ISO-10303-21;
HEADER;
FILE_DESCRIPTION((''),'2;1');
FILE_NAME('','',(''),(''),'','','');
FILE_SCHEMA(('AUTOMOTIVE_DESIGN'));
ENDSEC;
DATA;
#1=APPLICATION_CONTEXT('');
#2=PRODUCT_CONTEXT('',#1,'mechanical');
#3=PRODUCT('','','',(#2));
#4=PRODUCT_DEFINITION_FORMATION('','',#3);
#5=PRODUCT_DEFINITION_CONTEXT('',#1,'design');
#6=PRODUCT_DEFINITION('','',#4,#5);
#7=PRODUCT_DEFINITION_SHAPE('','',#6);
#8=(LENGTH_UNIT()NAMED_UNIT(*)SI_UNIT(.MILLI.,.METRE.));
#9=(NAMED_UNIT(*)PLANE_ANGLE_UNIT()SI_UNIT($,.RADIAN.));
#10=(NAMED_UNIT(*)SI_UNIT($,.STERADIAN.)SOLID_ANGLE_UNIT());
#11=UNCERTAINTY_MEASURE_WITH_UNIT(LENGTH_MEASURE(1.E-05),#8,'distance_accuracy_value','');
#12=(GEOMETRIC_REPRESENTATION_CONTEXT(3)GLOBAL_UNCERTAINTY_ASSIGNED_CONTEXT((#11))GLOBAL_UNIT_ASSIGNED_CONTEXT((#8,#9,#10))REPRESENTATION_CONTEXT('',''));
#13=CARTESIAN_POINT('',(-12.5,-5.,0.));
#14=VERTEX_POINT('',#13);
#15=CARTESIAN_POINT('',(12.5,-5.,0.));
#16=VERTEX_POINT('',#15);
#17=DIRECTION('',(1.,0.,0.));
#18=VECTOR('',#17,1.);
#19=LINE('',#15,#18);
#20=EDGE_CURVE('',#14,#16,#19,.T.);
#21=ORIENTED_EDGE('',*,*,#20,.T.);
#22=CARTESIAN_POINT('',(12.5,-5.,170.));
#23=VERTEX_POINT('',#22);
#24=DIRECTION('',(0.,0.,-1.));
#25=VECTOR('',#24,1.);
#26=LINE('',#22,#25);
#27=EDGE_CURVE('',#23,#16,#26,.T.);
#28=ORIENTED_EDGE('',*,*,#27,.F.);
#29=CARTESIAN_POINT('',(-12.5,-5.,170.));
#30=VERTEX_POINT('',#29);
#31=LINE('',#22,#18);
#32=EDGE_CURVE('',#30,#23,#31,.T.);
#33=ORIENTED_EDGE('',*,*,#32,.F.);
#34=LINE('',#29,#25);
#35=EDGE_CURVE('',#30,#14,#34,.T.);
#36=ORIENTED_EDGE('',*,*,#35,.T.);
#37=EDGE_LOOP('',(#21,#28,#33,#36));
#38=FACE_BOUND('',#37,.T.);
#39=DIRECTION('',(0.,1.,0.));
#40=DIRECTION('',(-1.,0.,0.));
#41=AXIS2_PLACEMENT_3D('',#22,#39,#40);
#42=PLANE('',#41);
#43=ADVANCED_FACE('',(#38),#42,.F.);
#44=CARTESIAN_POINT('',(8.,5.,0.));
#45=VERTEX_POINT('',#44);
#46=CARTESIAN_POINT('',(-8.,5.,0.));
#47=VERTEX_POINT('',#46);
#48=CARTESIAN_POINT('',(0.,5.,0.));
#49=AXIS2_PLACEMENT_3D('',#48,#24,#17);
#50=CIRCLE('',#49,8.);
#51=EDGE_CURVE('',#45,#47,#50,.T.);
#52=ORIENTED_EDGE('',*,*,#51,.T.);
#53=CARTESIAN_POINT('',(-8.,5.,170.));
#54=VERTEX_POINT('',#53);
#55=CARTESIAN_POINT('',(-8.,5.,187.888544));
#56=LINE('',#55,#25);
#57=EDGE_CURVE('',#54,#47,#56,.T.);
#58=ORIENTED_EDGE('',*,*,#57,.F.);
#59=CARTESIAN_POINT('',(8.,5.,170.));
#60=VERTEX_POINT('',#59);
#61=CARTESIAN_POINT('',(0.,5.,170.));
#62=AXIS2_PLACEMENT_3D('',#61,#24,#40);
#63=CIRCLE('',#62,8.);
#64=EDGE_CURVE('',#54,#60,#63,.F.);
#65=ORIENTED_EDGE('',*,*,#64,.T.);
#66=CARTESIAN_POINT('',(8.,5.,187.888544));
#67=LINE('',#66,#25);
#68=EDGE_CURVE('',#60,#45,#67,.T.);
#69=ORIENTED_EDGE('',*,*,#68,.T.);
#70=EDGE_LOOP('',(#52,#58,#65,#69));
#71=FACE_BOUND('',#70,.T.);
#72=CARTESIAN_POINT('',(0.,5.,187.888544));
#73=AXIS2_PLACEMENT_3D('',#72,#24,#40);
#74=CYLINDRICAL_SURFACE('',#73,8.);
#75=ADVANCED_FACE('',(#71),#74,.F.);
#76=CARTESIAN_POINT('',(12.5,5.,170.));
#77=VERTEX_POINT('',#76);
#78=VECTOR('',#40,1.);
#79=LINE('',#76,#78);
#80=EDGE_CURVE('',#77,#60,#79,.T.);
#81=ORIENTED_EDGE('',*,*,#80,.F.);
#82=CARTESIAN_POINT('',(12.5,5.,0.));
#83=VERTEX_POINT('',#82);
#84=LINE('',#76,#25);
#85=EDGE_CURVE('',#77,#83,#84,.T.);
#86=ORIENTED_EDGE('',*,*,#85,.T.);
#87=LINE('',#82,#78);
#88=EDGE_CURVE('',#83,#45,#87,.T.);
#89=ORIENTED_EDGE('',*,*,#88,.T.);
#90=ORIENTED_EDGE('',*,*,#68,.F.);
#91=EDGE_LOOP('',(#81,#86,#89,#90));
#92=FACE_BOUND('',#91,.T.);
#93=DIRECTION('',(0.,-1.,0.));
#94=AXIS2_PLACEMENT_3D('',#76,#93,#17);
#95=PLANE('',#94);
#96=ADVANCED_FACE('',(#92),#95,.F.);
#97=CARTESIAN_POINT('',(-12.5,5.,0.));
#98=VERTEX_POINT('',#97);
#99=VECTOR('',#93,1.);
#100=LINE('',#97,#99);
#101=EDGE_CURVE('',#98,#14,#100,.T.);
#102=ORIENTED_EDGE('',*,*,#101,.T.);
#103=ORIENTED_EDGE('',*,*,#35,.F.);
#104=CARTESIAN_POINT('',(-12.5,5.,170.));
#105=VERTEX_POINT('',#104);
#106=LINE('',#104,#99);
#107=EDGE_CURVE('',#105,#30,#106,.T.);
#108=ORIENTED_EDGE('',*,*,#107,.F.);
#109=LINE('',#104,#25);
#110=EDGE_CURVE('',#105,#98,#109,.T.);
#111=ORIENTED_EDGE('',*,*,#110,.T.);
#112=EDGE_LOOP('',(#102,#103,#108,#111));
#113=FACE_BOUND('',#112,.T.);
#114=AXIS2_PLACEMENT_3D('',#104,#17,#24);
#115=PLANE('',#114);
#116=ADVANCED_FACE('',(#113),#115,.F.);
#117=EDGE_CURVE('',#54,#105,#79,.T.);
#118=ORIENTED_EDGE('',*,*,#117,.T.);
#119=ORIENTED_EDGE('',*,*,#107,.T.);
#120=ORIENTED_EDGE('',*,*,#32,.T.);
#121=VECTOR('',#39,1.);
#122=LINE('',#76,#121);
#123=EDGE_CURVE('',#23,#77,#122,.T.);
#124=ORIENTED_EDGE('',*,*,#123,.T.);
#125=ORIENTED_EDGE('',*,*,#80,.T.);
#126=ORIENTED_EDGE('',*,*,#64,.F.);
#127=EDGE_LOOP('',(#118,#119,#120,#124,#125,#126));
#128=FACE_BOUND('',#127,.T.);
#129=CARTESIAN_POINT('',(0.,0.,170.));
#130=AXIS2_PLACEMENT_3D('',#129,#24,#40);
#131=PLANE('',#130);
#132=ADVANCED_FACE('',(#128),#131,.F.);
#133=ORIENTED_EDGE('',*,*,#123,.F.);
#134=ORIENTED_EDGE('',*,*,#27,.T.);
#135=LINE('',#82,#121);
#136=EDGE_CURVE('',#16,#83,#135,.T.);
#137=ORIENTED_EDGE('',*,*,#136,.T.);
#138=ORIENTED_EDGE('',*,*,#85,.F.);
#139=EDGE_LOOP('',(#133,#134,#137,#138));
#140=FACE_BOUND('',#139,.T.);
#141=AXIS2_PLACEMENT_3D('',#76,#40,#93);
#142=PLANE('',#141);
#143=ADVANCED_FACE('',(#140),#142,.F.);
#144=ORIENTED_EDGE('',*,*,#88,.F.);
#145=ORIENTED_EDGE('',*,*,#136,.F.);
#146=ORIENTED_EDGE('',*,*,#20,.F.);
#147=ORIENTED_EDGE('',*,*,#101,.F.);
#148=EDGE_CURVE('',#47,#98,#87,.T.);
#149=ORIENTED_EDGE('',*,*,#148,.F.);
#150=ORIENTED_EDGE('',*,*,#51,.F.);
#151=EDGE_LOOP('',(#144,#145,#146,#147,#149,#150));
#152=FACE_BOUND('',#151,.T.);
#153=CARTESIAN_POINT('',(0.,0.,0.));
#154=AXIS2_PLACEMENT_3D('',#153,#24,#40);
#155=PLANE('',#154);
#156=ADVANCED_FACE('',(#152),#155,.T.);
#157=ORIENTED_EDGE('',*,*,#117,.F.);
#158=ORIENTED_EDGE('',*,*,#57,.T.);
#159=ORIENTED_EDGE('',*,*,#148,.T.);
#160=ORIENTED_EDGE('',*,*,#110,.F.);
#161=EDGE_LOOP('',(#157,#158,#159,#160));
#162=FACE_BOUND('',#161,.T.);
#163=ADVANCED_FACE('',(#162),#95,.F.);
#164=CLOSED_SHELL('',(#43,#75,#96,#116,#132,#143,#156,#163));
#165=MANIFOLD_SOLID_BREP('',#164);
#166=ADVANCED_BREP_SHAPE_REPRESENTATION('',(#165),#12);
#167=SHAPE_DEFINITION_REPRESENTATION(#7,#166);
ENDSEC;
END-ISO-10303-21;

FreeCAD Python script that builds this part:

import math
import FreeCAD as App
import Part
import Sketcher
from FreeCAD import Vector


def add_polygon(sketch, points):
    """Adds a closed chain of lines whose ends are joined by coincident constraints."""
    first, n = sketch.GeometryCount, len(points)
    for a, b in zip(points, points[1:] + points[:1]):
        sketch.addGeometry(Part.LineSegment(App.Vector(*a, 0), App.Vector(*b, 0)), False)
    for i in range(n):
        sketch.addConstraint(Sketcher.Constraint("Coincident", first + i, 2, first + (i + 1) % n, 1))

doc = App.newDocument("Part")
body = doc.addObject("PartDesign::Body", "Body")

sketch1 = body.newObject("Sketcher::SketchObject", "Sketch")
sketch1.AttachmentSupport = (doc.getObject("XY_Plane"), [""])
sketch1.MapMode = "FlatFace"
add_polygon(sketch1, [(-12.5, 5), (-12.5, -5), (12.5, -5), (12.5, 5)])
sketch1.addConstraint([
    Sketcher.Constraint("Vertical", 0),
    Sketcher.Constraint("Horizontal", 1),
    Sketcher.Constraint("Vertical", 2),
    Sketcher.Constraint("Horizontal", 3),
    Sketcher.Constraint("Symmetric", 0, 2, 2, 2, -1, 1),
    Sketcher.Constraint("DistanceX", 1, 1, 1, 2, 25.0),
    Sketcher.Constraint("DistanceY", 0, 2, 0, 1, 10.0),
])
pad1 = body.newObject("PartDesign::Pad", "Pad")
pad1.Profile = sketch1
pad1.Length = 170

sketch2 = body.newObject("Sketcher::SketchObject", "Sketch001")
sketch2.AttachmentSupport = (doc.getObject("XY_Plane"), [""])
sketch2.MapMode = "FlatFace"
sketch2.addGeometry([
    Part.LineSegment(Vector(-8, 5, 0), Vector(8, 5, 0)),
    Part.ArcOfCircle(Part.Circle(Vector(0, 5, 0), Vector(0, 0, 1), 8), math.radians(180), math.radians(360)),
], False)
sketch2.addConstraint([
    Sketcher.Constraint("Coincident", 0, 1, 1, 1),
    Sketcher.Constraint("Coincident", 1, 2, 0, 2),
    Sketcher.Constraint("Horizontal", 0),
    Sketcher.Constraint("PointOnObject", 1, 3, -2),
    Sketcher.Constraint("Horizontal", 1, 3, 0, 1),
    Sketcher.Constraint("Radius", 1, 8.0),
    Sketcher.Constraint("DistanceY", -1, 1, 1, 3, 5.0),
])
pocket1 = body.newObject("PartDesign::Pocket", "Pocket")
pocket1.Profile = sketch2
pocket1.Length = 170
pocket1.Reversed = True

doc.recompute()
